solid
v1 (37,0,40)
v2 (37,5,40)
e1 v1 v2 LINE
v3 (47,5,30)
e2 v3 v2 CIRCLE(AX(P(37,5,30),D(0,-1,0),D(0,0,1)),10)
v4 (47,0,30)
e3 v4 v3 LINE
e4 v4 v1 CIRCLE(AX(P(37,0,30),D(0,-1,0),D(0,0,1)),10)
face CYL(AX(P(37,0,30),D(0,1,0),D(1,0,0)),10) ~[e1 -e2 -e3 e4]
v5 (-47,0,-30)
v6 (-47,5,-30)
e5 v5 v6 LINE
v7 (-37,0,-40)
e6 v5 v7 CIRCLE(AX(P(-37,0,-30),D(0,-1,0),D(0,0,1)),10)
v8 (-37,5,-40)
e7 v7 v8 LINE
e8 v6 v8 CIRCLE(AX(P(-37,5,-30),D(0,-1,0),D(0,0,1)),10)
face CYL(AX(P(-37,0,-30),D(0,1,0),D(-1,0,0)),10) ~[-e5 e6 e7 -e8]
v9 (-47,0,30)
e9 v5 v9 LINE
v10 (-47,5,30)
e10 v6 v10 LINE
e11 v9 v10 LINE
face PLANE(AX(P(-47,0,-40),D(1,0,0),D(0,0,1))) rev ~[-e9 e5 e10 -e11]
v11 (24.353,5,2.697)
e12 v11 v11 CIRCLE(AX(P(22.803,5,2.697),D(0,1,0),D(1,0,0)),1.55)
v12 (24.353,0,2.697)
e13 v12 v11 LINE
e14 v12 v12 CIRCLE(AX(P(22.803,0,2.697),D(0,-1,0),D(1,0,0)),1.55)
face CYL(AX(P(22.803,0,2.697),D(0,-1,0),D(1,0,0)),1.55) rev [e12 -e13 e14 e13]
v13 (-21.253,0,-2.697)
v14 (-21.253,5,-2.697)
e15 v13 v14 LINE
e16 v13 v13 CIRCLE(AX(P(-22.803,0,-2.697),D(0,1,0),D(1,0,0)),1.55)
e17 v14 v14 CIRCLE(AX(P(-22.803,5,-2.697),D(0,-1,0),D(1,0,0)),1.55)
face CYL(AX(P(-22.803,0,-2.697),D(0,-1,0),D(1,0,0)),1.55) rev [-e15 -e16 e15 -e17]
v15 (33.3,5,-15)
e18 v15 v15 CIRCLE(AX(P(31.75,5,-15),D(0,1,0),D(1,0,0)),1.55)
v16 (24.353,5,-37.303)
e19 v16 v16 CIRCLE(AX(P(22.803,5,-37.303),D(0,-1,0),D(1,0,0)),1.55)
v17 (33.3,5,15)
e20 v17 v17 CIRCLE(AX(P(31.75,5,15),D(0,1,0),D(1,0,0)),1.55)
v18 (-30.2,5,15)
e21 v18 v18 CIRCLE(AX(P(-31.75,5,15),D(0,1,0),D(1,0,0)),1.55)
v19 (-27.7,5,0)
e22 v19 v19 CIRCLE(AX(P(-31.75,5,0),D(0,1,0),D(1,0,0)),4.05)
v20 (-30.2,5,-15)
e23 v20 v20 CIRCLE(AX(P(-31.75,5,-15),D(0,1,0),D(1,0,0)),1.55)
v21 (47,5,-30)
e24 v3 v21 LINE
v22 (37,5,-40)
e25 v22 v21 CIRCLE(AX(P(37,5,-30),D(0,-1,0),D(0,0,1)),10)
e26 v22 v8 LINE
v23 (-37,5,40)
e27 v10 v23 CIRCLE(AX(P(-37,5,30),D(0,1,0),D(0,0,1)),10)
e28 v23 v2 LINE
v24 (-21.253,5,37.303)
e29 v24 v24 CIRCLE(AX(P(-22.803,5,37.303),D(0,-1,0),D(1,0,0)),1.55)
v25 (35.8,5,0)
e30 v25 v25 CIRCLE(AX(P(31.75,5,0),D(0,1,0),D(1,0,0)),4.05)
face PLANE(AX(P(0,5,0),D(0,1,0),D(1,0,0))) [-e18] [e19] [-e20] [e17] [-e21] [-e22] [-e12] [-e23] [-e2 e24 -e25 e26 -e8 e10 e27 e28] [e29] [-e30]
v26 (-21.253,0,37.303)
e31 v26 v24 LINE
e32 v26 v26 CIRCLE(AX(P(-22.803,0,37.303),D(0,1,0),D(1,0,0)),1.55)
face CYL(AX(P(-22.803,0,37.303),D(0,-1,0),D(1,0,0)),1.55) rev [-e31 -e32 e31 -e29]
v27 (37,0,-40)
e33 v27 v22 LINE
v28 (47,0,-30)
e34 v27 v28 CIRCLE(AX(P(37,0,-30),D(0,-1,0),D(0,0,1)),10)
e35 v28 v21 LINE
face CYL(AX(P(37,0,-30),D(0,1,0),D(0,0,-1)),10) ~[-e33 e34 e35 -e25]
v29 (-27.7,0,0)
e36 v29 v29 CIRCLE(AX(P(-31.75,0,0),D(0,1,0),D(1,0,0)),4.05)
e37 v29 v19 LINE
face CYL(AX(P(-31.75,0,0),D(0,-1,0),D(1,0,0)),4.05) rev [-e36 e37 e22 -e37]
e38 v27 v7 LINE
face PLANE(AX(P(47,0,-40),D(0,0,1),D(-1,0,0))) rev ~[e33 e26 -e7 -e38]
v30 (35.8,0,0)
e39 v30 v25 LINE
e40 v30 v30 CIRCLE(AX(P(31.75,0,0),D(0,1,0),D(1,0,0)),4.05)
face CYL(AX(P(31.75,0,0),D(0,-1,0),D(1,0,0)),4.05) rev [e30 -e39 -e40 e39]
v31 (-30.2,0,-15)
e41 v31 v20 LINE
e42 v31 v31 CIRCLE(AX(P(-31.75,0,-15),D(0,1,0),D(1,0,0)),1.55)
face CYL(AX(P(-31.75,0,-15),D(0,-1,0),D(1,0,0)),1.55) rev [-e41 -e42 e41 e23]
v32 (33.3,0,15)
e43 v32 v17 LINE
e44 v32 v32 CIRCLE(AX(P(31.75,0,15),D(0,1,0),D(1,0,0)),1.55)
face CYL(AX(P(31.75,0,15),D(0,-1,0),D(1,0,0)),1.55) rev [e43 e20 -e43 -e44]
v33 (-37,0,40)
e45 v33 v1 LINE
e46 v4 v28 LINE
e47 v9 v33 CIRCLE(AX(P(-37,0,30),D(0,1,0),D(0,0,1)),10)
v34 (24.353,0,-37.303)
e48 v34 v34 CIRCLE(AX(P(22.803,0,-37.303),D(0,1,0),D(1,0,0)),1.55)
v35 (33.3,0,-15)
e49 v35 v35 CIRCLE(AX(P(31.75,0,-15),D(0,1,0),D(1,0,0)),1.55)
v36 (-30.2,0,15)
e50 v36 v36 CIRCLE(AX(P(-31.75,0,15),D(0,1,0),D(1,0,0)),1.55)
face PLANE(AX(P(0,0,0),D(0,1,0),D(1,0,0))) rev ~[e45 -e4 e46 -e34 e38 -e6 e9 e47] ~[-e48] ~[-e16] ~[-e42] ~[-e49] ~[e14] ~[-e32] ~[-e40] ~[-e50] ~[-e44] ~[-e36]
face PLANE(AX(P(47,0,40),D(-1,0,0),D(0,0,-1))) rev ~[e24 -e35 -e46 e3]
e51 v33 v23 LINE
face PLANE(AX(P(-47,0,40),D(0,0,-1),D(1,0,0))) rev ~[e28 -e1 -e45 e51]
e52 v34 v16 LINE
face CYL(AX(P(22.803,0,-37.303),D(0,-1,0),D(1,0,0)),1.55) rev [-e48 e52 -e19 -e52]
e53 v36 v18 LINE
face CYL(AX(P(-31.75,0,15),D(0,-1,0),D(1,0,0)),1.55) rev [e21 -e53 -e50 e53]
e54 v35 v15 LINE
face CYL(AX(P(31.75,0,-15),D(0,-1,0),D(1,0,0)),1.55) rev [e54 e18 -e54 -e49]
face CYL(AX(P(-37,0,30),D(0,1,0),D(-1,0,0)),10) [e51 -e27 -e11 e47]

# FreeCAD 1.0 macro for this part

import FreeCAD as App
import Part
import Sketcher

V = App.Vector
Q = App.Units.Quantity


def edges_at(feature, points):
    """Names of the edges that pass closest to the given points."""
    edges = feature.Shape.Edges
    near = lambda p: min(range(len(edges)), key=lambda i: edges[i].distToShape(Part.Vertex(*p))[0])
    return sorted({f"Edge{near(p) + 1}" for p in points})


def add_polygon(sketch, points):
    """Adds a closed chain of lines whose ends are joined by coincident constraints."""
    first, n = sketch.GeometryCount, len(points)
    for a, b in zip(points, points[1:] + points[:1]):
        sketch.addGeometry(Part.LineSegment(App.Vector(*a, 0), App.Vector(*b, 0)), False)
    for i in range(n):
        sketch.addConstraint(Sketcher.Constraint("Coincident", first + i, 2, first + (i + 1) % n, 1))

doc = App.newDocument("Part")
body = doc.addObject("PartDesign::Body", "Body")

sketch1 = body.newObject("Sketcher::SketchObject", "Sketch")
sketch1.AttachmentSupport = (doc.getObject("XZ_Plane"), [""])
sketch1.MapMode = "FlatFace"
add_polygon(sketch1, [(-47, -40), (-47, 40), (47, 40), (47, -40)])
sketch1.addGeometry(Part.Circle(V(22.8, 2.7, 0), V(0, 0, 1), 1.6), False)
sketch1.addGeometry(Part.Circle(V(-22.8, 37.3, 0), V(0, 0, 1), 1.6), False)
sketch1.addGeometry(Part.Circle(V(-31.8, 15, 0), V(0, 0, 1), 1.6), False)
sketch1.addGeometry(Part.Circle(V(-22.8, -2.7, 0), V(0, 0, 1), 1.6), False)
sketch1.addGeometry(Part.Circle(V(31.8, 15, 0), V(0, 0, 1), 1.6), False)
sketch1.addGeometry(Part.Circle(V(-31.8, 0, 0), V(0, 0, 1), 4), False)
sketch1.addGeometry(Part.Circle(V(-31.8, -15, 0), V(0, 0, 1), 1.6), False)
sketch1.addGeometry(Part.Circle(V(31.8, 0, 0), V(0, 0, 1), 4), False)
sketch1.addGeometry(Part.Circle(V(31.8, -15, 0), V(0, 0, 1), 1.6), False)
sketch1.addGeometry(Part.Circle(V(22.8, -37.3, 0), V(0, 0, 1), 1.6), False)
sketch1.addConstraint([
    Sketcher.Constraint("Vertical", 0),
    Sketcher.Constraint("Horizontal", 1),
    Sketcher.Constraint("Vertical", 2),
    Sketcher.Constraint("Horizontal", 3),
    Sketcher.Constraint("Equal", 4, 5),
    Sketcher.Constraint("Equal", 5, 6),
    Sketcher.Constraint("Equal", 6, 7),
    Sketcher.Constraint("Equal", 7, 8),
    Sketcher.Constraint("Equal", 8, 10),
    Sketcher.Constraint("Equal", 9, 11),
    Sketcher.Constraint("Equal", 10, 12),
    Sketcher.Constraint("Equal", 12, 13),
    Sketcher.Constraint("Symmetric", 4, 3, 7, 3, -1, 1),
    Sketcher.Constraint("Symmetric", 8, 3, 10, 3, -1, 1),
    Sketcher.Constraint("Symmetric", 9, 3, 11, 3, -1, 1),
    Sketcher.Constraint("Symmetric", 6, 3, 12, 3, -1, 1),
    Sketcher.Constraint("Symmetric", 5, 3, 13, 3, -1, 1),
    Sketcher.Constraint("Symmetric", 0, 2, 2, 2, -1, 1),
    Sketcher.Constraint("Symmetric", 6, 3, 8, 3, -2),
    Sketcher.Constraint("PointOnObject", 9, 3, -1),
    Sketcher.Constraint("Vertical", 5, 3, 7, 3),
    Sketcher.Constraint("Vertical", 6, 3, 9, 3),
    Sketcher.Constraint("Diameter", 4, Q("3.1 mm")),
    Sketcher.Constraint("Diameter", 9, Q("8.1 mm")),
    Sketcher.Constraint("DistanceX", 1, 1, 1, 2, Q("94 mm")),
    Sketcher.Constraint("DistanceY", 0, 1, 0, 2, Q("80 mm")),
    Sketcher.Constraint("DistanceY", -1, 1, 6, 3, Q("15 mm")),
    Sketcher.Constraint("DistanceY", 7, 3, 5, 3, Q("40 mm")),
    Sketcher.Constraint("DistanceX", 5, 3, 4, 3, Q("45.606 mm")),
    Sketcher.Constraint("DistanceY", 4, 3, 5, 3, Q("34.606 mm")),
    Sketcher.Constraint("DistanceX", 6, 3, 8, 3, Q("63.5 mm")),
])
pad1 = body.newObject("PartDesign::Pad", "Pad")
pad1.Profile = sketch1
pad1.Length = 5
pad1.Reversed = True
doc.recompute()

fillet = body.newObject("PartDesign::Fillet", "Fillet")
fillet.Base = (pad1, edges_at(pad1, [
    (47, 2.5, 40),
    (47, 2.5, -40),
    (-47, 2.5, 40),
    (-47, 2.5, -40),
]))
fillet.Radius = 10

doc.recompute()
